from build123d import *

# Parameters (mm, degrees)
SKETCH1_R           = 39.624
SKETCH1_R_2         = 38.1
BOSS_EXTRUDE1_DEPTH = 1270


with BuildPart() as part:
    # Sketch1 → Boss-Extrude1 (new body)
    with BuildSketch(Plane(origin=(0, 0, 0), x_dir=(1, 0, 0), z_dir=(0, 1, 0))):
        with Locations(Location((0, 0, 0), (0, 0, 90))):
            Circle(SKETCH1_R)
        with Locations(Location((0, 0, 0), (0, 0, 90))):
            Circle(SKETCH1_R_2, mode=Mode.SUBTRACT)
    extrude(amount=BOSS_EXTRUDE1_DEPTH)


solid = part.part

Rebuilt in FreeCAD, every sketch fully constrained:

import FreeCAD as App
import Part
import Sketcher

V = App.Vector
Q = App.Units.Quantity

doc = App.newDocument("Part")
body = doc.addObject("PartDesign::Body", "Body")

sketch1 = body.newObject("Sketcher::SketchObject", "Sketch")
sketch1.AttachmentSupport = (doc.getObject("XZ_Plane"), [""])
sketch1.MapMode = "FlatFace"
sketch1.addGeometry(Part.Circle(V(0, 0, 0), V(0, 0, 1), 40), False)
sketch1.addGeometry(Part.Circle(V(0, 0, 0), V(0, 0, 1), 38), False)
sketch1.addConstraint(Sketcher.Constraint("Coincident", 0, 3, -1, 1))
sketch1.addConstraint(Sketcher.Constraint("Coincident", 1, 3, -1, 1))
sketch1.addConstraint(Sketcher.Constraint("Diameter", 1, Q("3 in")))
sketch1.addConstraint(Sketcher.Constraint("Diameter", 0, Q("3.12 in")))
pad1 = body.newObject("PartDesign::Pad", "Pad")
pad1.Profile = sketch1
pad1.Length = Q("50 in")
pad1.Reversed = True

doc.recompute()
